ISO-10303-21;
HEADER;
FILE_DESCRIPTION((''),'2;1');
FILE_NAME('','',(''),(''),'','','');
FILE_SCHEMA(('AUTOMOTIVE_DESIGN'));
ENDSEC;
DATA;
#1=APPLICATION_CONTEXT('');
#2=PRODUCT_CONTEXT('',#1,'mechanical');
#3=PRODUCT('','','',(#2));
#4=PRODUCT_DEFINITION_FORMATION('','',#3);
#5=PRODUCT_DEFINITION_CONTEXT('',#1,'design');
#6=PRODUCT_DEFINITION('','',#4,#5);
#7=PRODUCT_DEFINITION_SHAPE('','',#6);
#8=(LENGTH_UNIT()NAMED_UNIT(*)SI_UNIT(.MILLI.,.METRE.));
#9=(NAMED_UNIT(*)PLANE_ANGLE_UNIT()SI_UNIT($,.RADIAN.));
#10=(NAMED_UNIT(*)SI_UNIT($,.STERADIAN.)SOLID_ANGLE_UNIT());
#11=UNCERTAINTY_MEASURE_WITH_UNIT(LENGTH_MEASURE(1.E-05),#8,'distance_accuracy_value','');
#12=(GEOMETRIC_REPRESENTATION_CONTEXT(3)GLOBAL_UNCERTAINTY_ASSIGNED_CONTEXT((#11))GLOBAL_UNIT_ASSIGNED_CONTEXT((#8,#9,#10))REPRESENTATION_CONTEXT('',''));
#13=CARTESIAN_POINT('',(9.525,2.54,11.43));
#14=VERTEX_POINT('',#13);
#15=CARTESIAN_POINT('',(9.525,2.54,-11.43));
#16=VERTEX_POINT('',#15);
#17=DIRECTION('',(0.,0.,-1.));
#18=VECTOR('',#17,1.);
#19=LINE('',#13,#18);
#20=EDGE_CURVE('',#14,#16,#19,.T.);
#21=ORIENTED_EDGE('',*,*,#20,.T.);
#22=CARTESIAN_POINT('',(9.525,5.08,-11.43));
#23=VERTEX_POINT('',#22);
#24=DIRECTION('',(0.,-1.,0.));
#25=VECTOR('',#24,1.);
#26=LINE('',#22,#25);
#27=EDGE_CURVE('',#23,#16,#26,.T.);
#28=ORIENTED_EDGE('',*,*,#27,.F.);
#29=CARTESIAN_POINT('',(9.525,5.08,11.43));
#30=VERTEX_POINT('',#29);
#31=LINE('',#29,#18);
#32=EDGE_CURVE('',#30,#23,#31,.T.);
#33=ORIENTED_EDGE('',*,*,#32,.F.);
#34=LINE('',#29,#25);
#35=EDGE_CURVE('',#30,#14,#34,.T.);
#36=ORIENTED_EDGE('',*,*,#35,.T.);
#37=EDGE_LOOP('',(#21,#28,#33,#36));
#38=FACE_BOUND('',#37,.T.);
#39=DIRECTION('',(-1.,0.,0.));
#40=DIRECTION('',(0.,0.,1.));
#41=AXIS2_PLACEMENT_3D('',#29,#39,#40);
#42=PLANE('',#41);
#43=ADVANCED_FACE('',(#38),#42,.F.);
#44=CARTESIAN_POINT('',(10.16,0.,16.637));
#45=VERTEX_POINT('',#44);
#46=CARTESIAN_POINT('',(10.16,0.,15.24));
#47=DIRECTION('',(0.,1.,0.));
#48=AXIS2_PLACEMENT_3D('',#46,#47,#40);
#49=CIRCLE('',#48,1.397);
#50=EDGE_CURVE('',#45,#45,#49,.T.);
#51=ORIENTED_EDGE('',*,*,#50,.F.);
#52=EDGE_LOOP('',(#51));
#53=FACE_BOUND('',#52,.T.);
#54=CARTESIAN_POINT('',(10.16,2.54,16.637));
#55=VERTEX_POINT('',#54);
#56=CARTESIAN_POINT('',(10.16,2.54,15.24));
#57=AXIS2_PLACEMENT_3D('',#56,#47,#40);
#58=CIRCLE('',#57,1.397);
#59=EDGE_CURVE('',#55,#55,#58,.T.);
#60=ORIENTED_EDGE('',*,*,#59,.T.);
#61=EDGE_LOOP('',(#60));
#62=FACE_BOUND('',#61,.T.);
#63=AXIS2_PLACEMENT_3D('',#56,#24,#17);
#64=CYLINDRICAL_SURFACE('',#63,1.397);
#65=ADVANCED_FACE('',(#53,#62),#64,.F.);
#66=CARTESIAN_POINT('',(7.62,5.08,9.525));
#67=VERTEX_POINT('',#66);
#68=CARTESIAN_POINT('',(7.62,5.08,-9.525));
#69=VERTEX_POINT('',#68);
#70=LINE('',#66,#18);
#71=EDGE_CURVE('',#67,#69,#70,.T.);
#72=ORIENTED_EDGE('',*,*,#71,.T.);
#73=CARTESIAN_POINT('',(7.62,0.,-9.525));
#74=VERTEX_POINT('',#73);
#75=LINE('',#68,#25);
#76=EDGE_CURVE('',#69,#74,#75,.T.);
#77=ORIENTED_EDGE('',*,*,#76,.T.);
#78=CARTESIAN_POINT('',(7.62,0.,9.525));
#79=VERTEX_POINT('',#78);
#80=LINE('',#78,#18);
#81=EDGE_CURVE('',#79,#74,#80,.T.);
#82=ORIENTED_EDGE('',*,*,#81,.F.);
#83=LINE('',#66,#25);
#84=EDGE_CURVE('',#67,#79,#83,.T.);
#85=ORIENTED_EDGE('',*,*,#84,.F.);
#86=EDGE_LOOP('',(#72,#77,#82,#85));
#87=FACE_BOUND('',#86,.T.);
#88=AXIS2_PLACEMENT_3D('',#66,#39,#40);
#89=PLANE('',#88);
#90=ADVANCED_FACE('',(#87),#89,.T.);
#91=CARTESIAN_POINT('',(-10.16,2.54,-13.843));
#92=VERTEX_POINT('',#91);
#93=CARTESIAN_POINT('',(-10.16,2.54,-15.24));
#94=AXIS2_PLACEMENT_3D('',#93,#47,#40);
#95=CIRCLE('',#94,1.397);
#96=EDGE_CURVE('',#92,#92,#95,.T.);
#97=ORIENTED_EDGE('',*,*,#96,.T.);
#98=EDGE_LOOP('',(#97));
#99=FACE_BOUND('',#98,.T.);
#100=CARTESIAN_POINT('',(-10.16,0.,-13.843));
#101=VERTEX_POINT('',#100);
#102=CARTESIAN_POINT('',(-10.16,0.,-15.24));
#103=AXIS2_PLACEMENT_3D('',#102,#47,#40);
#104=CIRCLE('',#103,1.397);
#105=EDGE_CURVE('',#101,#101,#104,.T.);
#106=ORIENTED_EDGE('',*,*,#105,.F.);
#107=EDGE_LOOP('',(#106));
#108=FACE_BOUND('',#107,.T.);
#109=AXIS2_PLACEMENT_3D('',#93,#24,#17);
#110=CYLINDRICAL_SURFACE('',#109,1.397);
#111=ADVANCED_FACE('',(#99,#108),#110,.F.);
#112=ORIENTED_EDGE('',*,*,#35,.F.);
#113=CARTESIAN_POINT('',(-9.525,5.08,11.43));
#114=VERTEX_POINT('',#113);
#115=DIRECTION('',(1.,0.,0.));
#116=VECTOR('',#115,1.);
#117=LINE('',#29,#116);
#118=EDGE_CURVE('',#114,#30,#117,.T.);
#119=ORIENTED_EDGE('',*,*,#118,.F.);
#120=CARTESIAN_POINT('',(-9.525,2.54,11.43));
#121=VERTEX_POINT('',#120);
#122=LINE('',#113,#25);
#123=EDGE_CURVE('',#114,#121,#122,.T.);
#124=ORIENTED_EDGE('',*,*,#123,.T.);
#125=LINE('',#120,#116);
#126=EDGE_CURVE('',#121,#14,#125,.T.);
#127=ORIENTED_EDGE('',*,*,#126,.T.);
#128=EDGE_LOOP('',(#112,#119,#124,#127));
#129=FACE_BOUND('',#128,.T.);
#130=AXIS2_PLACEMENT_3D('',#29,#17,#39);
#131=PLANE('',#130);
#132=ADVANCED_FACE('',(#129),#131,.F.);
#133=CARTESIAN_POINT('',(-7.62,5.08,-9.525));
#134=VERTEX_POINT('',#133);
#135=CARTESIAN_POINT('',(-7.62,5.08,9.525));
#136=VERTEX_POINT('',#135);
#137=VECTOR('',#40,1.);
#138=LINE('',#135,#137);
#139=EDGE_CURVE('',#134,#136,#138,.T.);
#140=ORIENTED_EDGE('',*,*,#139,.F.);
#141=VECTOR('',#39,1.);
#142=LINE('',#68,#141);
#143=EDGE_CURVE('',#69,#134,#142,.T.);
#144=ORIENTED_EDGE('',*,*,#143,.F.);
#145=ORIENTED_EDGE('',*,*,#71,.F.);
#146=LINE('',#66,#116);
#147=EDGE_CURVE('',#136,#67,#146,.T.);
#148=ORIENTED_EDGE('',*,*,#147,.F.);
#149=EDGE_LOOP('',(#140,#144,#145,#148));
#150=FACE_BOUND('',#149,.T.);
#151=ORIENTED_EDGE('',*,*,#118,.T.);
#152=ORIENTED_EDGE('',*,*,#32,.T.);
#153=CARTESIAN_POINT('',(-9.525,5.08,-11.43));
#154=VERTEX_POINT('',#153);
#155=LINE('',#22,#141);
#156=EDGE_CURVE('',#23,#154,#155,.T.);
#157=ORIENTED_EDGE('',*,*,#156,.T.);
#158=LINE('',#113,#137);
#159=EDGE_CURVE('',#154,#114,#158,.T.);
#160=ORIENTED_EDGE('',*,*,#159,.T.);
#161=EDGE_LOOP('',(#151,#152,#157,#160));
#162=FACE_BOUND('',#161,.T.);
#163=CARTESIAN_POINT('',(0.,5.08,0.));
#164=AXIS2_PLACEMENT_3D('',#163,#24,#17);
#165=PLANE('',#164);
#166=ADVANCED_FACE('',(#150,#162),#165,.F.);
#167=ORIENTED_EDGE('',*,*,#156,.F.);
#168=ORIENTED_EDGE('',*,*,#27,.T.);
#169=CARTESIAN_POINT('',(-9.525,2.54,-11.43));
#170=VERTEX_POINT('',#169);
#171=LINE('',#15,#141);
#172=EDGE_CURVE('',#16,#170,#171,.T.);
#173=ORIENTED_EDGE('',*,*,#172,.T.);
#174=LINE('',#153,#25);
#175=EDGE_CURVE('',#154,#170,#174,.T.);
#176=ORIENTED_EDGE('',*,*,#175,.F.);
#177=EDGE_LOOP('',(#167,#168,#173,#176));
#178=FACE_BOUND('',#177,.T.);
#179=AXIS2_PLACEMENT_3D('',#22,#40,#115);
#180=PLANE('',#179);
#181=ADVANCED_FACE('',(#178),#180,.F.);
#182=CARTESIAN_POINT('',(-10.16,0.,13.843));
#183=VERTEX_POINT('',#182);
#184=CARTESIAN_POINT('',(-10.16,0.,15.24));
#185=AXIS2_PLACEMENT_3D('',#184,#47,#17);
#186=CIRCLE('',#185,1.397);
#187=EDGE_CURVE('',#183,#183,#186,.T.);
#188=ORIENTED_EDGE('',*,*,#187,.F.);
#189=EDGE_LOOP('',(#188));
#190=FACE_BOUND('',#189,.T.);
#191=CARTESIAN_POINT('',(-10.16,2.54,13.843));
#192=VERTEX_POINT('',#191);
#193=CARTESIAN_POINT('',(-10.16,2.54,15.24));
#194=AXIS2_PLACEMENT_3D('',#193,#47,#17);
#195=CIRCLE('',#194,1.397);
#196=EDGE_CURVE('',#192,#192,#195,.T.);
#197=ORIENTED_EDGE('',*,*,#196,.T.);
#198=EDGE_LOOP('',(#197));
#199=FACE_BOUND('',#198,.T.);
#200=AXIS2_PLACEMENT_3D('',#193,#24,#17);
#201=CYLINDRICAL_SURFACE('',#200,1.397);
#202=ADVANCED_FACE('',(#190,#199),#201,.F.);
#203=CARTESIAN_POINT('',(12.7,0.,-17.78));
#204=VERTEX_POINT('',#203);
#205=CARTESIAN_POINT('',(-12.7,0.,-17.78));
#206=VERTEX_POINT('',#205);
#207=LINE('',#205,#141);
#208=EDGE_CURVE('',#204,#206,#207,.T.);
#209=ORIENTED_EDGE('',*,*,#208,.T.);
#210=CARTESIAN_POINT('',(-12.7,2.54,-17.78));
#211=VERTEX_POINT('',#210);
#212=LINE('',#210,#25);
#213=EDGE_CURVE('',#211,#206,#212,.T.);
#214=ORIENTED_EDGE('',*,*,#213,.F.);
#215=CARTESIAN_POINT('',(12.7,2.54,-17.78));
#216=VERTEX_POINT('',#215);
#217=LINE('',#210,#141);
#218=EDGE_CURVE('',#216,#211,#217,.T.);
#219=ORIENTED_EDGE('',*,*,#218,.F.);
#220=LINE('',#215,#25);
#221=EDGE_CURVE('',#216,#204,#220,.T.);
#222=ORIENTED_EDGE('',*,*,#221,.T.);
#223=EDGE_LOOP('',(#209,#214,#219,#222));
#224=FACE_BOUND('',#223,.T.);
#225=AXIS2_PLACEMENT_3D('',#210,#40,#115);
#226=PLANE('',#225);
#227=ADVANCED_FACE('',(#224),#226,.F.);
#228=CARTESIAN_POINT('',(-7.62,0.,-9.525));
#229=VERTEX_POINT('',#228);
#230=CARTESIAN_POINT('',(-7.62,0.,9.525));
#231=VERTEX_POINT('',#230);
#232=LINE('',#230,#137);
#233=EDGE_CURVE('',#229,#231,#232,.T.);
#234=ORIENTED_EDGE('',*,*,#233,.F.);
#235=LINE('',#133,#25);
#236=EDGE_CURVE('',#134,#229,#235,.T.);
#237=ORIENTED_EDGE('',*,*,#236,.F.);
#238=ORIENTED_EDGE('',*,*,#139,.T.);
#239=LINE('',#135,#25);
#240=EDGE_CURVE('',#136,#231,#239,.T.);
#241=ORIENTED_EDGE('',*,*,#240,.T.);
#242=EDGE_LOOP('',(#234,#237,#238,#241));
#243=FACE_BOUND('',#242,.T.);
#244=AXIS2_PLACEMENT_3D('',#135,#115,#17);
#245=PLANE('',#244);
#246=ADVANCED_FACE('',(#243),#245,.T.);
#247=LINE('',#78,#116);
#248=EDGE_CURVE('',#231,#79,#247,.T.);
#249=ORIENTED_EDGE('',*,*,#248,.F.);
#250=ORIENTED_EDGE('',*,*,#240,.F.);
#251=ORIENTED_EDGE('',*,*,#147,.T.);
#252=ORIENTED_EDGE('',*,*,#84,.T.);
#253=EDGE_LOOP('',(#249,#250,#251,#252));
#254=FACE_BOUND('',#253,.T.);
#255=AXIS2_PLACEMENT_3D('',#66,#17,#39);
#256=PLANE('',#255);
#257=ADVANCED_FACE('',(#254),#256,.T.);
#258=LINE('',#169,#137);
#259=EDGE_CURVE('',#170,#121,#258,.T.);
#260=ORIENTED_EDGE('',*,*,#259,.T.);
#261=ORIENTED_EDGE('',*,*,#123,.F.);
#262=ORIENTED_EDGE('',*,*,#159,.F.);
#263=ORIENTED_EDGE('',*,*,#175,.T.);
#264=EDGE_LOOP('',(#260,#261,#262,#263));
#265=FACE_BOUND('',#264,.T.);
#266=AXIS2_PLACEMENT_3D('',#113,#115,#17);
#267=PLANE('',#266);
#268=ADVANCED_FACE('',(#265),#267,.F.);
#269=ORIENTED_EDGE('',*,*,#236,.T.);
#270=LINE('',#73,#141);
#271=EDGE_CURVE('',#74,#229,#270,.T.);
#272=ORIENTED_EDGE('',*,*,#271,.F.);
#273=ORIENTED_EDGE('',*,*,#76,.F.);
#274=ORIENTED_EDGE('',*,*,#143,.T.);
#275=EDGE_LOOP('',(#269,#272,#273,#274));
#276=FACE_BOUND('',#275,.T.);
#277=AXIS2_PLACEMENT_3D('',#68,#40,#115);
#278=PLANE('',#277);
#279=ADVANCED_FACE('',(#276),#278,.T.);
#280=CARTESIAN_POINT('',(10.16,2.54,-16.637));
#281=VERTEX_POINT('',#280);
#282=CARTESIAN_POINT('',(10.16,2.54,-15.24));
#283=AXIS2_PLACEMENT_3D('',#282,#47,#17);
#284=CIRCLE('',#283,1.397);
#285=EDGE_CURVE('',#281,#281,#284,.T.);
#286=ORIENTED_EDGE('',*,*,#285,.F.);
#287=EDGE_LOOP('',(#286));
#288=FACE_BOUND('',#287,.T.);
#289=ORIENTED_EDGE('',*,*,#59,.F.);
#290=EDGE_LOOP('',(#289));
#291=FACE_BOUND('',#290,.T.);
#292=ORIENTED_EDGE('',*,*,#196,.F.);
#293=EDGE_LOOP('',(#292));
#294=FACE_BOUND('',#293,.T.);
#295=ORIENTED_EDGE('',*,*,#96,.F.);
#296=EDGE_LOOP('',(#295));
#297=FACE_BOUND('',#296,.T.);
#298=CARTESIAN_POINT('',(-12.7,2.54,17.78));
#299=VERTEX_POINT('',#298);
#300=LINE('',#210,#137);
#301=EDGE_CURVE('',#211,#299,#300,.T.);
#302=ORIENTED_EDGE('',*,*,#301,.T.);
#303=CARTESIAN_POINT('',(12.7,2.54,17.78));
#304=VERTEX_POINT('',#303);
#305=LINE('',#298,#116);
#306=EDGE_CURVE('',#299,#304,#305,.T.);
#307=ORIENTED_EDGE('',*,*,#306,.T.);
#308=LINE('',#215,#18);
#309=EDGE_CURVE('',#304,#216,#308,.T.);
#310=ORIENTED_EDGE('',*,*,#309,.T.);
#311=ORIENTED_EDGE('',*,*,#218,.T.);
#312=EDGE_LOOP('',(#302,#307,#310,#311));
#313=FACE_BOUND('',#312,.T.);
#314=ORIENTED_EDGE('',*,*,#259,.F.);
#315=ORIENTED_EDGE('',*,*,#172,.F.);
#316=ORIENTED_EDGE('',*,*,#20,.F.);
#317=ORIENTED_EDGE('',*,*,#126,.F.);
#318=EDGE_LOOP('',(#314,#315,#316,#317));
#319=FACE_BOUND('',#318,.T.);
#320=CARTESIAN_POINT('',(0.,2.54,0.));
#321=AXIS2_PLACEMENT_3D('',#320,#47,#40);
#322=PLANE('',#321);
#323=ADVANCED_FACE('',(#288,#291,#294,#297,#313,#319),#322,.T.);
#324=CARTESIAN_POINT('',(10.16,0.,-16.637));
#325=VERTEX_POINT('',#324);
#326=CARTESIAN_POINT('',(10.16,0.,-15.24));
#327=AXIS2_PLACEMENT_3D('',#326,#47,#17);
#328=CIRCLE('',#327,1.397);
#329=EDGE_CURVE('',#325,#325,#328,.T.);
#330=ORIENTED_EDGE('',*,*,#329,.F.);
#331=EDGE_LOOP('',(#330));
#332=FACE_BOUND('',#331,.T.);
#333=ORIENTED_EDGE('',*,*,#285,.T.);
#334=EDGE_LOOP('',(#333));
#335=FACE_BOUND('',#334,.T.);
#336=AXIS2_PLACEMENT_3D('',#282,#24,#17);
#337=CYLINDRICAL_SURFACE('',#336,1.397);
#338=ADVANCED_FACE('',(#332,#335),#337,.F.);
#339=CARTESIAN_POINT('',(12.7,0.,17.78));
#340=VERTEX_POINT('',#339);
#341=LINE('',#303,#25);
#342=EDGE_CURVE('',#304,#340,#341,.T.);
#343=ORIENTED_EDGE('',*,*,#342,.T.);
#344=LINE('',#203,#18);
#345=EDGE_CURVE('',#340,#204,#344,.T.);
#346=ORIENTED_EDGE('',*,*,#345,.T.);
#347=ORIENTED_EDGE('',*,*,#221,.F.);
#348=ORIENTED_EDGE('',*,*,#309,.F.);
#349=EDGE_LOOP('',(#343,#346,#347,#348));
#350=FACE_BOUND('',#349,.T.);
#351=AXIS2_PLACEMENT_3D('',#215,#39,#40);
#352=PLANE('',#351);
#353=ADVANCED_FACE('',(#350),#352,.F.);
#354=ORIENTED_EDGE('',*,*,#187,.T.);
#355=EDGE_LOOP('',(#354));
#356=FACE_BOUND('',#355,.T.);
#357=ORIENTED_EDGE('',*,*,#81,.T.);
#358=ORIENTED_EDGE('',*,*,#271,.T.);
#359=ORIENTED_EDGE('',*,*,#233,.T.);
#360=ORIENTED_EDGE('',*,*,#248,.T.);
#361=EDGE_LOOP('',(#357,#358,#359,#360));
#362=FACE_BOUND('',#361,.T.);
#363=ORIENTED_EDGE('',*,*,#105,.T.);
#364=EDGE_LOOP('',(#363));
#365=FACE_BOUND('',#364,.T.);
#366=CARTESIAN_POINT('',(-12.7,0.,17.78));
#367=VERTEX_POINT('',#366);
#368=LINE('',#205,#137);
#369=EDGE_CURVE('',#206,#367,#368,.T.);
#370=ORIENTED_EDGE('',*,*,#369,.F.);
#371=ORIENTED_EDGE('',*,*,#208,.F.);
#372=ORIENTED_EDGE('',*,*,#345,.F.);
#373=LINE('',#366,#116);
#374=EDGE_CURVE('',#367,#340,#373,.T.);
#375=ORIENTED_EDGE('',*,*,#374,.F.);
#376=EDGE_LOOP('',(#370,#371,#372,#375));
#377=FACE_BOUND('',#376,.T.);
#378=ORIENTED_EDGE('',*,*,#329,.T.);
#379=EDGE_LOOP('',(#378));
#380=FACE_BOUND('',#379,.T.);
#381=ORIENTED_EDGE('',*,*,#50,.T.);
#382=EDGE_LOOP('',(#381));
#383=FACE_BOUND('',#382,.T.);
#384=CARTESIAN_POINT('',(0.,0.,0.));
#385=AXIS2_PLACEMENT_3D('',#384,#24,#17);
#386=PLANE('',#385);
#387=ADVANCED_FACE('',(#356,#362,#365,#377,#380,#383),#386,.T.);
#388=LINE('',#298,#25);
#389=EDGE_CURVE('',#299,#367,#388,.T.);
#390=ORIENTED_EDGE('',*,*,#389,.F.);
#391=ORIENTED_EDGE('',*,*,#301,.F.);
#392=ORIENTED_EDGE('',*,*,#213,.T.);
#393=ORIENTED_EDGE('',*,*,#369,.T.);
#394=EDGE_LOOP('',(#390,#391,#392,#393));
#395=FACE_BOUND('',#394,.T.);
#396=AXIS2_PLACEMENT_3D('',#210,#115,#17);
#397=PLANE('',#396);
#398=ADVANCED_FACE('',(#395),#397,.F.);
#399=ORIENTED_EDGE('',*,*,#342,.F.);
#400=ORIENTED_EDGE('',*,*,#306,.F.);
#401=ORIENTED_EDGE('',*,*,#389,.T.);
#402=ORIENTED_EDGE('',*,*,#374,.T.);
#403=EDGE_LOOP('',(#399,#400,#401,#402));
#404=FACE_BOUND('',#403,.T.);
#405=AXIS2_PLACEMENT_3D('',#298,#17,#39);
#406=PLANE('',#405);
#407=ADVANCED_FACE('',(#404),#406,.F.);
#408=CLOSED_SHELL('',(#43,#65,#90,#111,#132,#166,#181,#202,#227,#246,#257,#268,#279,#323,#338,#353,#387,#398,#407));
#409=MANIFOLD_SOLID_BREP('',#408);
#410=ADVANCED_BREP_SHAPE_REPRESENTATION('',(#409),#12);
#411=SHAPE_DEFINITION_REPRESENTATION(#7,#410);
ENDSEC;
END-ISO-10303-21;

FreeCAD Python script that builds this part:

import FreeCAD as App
import Part
import Sketcher

V = App.Vector
Q = App.Units.Quantity

doc = App.newDocument("Part")
params = doc.addObject("Spreadsheet::Sheet", "Params")
for row, (alias, value) in enumerate([
    ("sketch1_width", "0.6 in"),
    ("sketch1_height", "0.9 in"),
    ("sketch1_width2", "0.75 in"),
    ("pad1_length", "0.2 in"),
    ("sketch2_diameter", "0.11 in"),
    ("sketch2_width", "1 in"),
    ("sketch2_height", "1.4 in"),
    ("sketch2_height2", "0.9 in"),
    ("sketch2_width2", "0.75 in"),
    ("pad2_length", "0.1 in"),
], start=1):
    params.set(f"A{row}", alias)
    params.set(f"B{row}", "=" + value)
    params.setAlias(f"B{row}", alias)

body = doc.addObject("PartDesign::Body", "Body")

sketch1 = doc.addObject("Sketcher::SketchObject", "Sketch")
body.addObject(sketch1)
sketch1.AttachmentSupport = (doc.XZ_Plane, [""])
sketch1.MapMode = "FlatFace"
sketch1.addGeometry([
    Part.LineSegment(V(-9.525, -11.43, 0), V(-9.525, 11.43, 0)),
    Part.LineSegment(V(-9.525, 11.43, 0), V(9.525, 11.43, 0)),
    Part.LineSegment(V(9.525, 11.43, 0), V(9.525, -11.43, 0)),
    Part.LineSegment(V(9.525, -11.43, 0), V(-9.525, -11.43, 0)),
    Part.LineSegment(V(7.62, 9.525, 0), V(-7.62, 9.525, 0)),
    Part.LineSegment(V(-7.62, 9.525, 0), V(-7.62, -9.525, 0)),
    Part.LineSegment(V(-7.62, -9.525, 0), V(7.62, -9.525, 0)),
    Part.LineSegment(V(7.62, -9.525, 0), V(7.62, 9.525, 0)),
], False)
sketch1.addConstraint([
    Sketcher.Constraint("Coincident", 0, 2, 1, 1),
    Sketcher.Constraint("Coincident", 1, 2, 2, 1),
    Sketcher.Constraint("Coincident", 2, 2, 3, 1),
    Sketcher.Constraint("Coincident", 3, 2, 0, 1),
    Sketcher.Constraint("Coincident", 4, 2, 5, 1),
    Sketcher.Constraint("Coincident", 5, 2, 6, 1),
    Sketcher.Constraint("Coincident", 6, 2, 7, 1),
    Sketcher.Constraint("Coincident", 7, 2, 4, 1),
    Sketcher.Constraint("Vertical", 0),
    Sketcher.Constraint("Horizontal", 1),
    Sketcher.Constraint("Vertical", 2),
    Sketcher.Constraint("Horizontal", 3),
    Sketcher.Constraint("Horizontal", 4),
    Sketcher.Constraint("Vertical", 5),
    Sketcher.Constraint("Horizontal", 6),
    Sketcher.Constraint("Vertical", 7),
    Sketcher.Constraint("Symmetric", 0, 2, 2, 2, -1, 1),
    Sketcher.Constraint("Symmetric", 4, 2, 6, 2, -1, 1),
    Sketcher.Constraint("Equal", 3, 5),
    Sketcher.Constraint("DistanceX", 4, 2, 4, 1, Q("0.6 in")),
    Sketcher.Constraint("DistanceY", 0, 1, 0, 2, Q("0.9 in")),
    Sketcher.Constraint("DistanceX", 1, 1, 1, 2, Q("0.75 in")),
])
sketch1.setExpression("Constraints[19]", "Params.sketch1_width")
sketch1.setExpression("Constraints[20]", "Params.sketch1_height")
sketch1.setExpression("Constraints[21]", "Params.sketch1_width2")
pad1 = doc.addObject("PartDesign::Pad", "Pad")
body.addObject(pad1)
pad1.Profile = sketch1
pad1.setExpression("Length", "Params.pad1_length")
pad1.Reversed = True

sketch2 = doc.addObject("Sketcher::SketchObject", "Sketch001")
body.addObject(sketch2)
sketch2.AttachmentSupport = (doc.XZ_Plane, [""])
sketch2.MapMode = "FlatFace"
sketch2.addGeometry([
    Part.LineSegment(V(-12.7, -17.78, 0), V(-12.7, 17.78, 0)),
    Part.LineSegment(V(-12.7, 17.78, 0), V(12.7, 17.78, 0)),
    Part.LineSegment(V(12.7, 17.78, 0), V(12.7, -17.78, 0)),
    Part.LineSegment(V(12.7, -17.78, 0), V(-12.7, -17.78, 0)),
    Part.Circle(V(-10.16, 15.24, 0), V(0, 0, 1), 1.397),
    Part.Circle(V(10.16, 15.24, 0), V(0, 0, 1), 1.397),
    Part.LineSegment(V(9.525, 11.43, 0), V(-9.525, 11.43, 0)),
    Part.LineSegment(V(-9.525, 11.43, 0), V(-9.525, -11.43, 0)),
    Part.LineSegment(V(-9.525, -11.43, 0), V(9.525, -11.43, 0)),
    Part.LineSegment(V(9.525, -11.43, 0), V(9.525, 11.43, 0)),
    Part.Circle(V(-10.16, -15.24, 0), V(0, 0, 1), 1.397),
    Part.Circle(V(10.16, -15.24, 0), V(0, 0, 1), 1.397),
], False)
sketch2.addConstraint([
    Sketcher.Constraint("Coincident", 0, 2, 1, 1),
    Sketcher.Constraint("Coincident", 1, 2, 2, 1),
    Sketcher.Constraint("Coincident", 2, 2, 3, 1),
    Sketcher.Constraint("Coincident", 3, 2, 0, 1),
    Sketcher.Constraint("Coincident", 6, 2, 7, 1),
    Sketcher.Constraint("Coincident", 7, 2, 8, 1),
    Sketcher.Constraint("Coincident", 8, 2, 9, 1),
    Sketcher.Constraint("Coincident", 9, 2, 6, 1),
    Sketcher.Constraint("Vertical", 0),
    Sketcher.Constraint("Horizontal", 1),
    Sketcher.Constraint("Vertical", 2),
    Sketcher.Constraint("Horizontal", 3),
    Sketcher.Constraint("Horizontal", 6),
    Sketcher.Constraint("Vertical", 7),
    Sketcher.Constraint("Horizontal", 8),
    Sketcher.Constraint("Vertical", 9),
    Sketcher.Constraint("Equal", 4, 5),
    Sketcher.Constraint("Equal", 5, 10),
    Sketcher.Constraint("Equal", 10, 11),
    Sketcher.Constraint("Symmetric", 5, 3, 10, 3, -1, 1),
    Sketcher.Constraint("Symmetric", 4, 3, 11, 3, -1, 1),
    Sketcher.Constraint("Symmetric", 0, 2, 2, 2, -1, 1),
    Sketcher.Constraint("Symmetric", 6, 2, 8, 2, -1, 1),
    Sketcher.Constraint("Symmetric", 4, 3, 5, 3, -2),
    Sketcher.Constraint("Diameter", 4, Q("0.11 in")),
    Sketcher.Constraint("DistanceX", 1, 1, 1, 2, Q("1 in")),
    Sketcher.Constraint("DistanceY", 0, 1, 0, 2, Q("1.4 in")),
    Sketcher.Constraint("DistanceY", 7, 2, 7, 1, Q("0.9 in")),
    Sketcher.Constraint("DistanceX", 6, 2, 6, 1, Q("0.75 in")),
    Sketcher.Constraint("DistanceX", 4, 3, -1, 1, Q("0.4 in")),
    Sketcher.Constraint("DistanceY", -1, 1, 4, 3, Q("0.6 in")),
])
sketch2.setExpression("Constraints[24]", "Params.sketch2_diameter")
sketch2.setExpression("Constraints[25]", "Params.sketch2_width")
sketch2.setExpression("Constraints[26]", "Params.sketch2_height")
sketch2.setExpression("Constraints[27]", "Params.sketch2_height2")
sketch2.setExpression("Constraints[28]", "Params.sketch2_width2")
pad2 = doc.addObject("PartDesign::Pad", "Pad001")
body.addObject(pad2)
pad2.Profile = sketch2
pad2.setExpression("Length", "Params.pad2_length")
pad2.Reversed = True

doc.recompute()
